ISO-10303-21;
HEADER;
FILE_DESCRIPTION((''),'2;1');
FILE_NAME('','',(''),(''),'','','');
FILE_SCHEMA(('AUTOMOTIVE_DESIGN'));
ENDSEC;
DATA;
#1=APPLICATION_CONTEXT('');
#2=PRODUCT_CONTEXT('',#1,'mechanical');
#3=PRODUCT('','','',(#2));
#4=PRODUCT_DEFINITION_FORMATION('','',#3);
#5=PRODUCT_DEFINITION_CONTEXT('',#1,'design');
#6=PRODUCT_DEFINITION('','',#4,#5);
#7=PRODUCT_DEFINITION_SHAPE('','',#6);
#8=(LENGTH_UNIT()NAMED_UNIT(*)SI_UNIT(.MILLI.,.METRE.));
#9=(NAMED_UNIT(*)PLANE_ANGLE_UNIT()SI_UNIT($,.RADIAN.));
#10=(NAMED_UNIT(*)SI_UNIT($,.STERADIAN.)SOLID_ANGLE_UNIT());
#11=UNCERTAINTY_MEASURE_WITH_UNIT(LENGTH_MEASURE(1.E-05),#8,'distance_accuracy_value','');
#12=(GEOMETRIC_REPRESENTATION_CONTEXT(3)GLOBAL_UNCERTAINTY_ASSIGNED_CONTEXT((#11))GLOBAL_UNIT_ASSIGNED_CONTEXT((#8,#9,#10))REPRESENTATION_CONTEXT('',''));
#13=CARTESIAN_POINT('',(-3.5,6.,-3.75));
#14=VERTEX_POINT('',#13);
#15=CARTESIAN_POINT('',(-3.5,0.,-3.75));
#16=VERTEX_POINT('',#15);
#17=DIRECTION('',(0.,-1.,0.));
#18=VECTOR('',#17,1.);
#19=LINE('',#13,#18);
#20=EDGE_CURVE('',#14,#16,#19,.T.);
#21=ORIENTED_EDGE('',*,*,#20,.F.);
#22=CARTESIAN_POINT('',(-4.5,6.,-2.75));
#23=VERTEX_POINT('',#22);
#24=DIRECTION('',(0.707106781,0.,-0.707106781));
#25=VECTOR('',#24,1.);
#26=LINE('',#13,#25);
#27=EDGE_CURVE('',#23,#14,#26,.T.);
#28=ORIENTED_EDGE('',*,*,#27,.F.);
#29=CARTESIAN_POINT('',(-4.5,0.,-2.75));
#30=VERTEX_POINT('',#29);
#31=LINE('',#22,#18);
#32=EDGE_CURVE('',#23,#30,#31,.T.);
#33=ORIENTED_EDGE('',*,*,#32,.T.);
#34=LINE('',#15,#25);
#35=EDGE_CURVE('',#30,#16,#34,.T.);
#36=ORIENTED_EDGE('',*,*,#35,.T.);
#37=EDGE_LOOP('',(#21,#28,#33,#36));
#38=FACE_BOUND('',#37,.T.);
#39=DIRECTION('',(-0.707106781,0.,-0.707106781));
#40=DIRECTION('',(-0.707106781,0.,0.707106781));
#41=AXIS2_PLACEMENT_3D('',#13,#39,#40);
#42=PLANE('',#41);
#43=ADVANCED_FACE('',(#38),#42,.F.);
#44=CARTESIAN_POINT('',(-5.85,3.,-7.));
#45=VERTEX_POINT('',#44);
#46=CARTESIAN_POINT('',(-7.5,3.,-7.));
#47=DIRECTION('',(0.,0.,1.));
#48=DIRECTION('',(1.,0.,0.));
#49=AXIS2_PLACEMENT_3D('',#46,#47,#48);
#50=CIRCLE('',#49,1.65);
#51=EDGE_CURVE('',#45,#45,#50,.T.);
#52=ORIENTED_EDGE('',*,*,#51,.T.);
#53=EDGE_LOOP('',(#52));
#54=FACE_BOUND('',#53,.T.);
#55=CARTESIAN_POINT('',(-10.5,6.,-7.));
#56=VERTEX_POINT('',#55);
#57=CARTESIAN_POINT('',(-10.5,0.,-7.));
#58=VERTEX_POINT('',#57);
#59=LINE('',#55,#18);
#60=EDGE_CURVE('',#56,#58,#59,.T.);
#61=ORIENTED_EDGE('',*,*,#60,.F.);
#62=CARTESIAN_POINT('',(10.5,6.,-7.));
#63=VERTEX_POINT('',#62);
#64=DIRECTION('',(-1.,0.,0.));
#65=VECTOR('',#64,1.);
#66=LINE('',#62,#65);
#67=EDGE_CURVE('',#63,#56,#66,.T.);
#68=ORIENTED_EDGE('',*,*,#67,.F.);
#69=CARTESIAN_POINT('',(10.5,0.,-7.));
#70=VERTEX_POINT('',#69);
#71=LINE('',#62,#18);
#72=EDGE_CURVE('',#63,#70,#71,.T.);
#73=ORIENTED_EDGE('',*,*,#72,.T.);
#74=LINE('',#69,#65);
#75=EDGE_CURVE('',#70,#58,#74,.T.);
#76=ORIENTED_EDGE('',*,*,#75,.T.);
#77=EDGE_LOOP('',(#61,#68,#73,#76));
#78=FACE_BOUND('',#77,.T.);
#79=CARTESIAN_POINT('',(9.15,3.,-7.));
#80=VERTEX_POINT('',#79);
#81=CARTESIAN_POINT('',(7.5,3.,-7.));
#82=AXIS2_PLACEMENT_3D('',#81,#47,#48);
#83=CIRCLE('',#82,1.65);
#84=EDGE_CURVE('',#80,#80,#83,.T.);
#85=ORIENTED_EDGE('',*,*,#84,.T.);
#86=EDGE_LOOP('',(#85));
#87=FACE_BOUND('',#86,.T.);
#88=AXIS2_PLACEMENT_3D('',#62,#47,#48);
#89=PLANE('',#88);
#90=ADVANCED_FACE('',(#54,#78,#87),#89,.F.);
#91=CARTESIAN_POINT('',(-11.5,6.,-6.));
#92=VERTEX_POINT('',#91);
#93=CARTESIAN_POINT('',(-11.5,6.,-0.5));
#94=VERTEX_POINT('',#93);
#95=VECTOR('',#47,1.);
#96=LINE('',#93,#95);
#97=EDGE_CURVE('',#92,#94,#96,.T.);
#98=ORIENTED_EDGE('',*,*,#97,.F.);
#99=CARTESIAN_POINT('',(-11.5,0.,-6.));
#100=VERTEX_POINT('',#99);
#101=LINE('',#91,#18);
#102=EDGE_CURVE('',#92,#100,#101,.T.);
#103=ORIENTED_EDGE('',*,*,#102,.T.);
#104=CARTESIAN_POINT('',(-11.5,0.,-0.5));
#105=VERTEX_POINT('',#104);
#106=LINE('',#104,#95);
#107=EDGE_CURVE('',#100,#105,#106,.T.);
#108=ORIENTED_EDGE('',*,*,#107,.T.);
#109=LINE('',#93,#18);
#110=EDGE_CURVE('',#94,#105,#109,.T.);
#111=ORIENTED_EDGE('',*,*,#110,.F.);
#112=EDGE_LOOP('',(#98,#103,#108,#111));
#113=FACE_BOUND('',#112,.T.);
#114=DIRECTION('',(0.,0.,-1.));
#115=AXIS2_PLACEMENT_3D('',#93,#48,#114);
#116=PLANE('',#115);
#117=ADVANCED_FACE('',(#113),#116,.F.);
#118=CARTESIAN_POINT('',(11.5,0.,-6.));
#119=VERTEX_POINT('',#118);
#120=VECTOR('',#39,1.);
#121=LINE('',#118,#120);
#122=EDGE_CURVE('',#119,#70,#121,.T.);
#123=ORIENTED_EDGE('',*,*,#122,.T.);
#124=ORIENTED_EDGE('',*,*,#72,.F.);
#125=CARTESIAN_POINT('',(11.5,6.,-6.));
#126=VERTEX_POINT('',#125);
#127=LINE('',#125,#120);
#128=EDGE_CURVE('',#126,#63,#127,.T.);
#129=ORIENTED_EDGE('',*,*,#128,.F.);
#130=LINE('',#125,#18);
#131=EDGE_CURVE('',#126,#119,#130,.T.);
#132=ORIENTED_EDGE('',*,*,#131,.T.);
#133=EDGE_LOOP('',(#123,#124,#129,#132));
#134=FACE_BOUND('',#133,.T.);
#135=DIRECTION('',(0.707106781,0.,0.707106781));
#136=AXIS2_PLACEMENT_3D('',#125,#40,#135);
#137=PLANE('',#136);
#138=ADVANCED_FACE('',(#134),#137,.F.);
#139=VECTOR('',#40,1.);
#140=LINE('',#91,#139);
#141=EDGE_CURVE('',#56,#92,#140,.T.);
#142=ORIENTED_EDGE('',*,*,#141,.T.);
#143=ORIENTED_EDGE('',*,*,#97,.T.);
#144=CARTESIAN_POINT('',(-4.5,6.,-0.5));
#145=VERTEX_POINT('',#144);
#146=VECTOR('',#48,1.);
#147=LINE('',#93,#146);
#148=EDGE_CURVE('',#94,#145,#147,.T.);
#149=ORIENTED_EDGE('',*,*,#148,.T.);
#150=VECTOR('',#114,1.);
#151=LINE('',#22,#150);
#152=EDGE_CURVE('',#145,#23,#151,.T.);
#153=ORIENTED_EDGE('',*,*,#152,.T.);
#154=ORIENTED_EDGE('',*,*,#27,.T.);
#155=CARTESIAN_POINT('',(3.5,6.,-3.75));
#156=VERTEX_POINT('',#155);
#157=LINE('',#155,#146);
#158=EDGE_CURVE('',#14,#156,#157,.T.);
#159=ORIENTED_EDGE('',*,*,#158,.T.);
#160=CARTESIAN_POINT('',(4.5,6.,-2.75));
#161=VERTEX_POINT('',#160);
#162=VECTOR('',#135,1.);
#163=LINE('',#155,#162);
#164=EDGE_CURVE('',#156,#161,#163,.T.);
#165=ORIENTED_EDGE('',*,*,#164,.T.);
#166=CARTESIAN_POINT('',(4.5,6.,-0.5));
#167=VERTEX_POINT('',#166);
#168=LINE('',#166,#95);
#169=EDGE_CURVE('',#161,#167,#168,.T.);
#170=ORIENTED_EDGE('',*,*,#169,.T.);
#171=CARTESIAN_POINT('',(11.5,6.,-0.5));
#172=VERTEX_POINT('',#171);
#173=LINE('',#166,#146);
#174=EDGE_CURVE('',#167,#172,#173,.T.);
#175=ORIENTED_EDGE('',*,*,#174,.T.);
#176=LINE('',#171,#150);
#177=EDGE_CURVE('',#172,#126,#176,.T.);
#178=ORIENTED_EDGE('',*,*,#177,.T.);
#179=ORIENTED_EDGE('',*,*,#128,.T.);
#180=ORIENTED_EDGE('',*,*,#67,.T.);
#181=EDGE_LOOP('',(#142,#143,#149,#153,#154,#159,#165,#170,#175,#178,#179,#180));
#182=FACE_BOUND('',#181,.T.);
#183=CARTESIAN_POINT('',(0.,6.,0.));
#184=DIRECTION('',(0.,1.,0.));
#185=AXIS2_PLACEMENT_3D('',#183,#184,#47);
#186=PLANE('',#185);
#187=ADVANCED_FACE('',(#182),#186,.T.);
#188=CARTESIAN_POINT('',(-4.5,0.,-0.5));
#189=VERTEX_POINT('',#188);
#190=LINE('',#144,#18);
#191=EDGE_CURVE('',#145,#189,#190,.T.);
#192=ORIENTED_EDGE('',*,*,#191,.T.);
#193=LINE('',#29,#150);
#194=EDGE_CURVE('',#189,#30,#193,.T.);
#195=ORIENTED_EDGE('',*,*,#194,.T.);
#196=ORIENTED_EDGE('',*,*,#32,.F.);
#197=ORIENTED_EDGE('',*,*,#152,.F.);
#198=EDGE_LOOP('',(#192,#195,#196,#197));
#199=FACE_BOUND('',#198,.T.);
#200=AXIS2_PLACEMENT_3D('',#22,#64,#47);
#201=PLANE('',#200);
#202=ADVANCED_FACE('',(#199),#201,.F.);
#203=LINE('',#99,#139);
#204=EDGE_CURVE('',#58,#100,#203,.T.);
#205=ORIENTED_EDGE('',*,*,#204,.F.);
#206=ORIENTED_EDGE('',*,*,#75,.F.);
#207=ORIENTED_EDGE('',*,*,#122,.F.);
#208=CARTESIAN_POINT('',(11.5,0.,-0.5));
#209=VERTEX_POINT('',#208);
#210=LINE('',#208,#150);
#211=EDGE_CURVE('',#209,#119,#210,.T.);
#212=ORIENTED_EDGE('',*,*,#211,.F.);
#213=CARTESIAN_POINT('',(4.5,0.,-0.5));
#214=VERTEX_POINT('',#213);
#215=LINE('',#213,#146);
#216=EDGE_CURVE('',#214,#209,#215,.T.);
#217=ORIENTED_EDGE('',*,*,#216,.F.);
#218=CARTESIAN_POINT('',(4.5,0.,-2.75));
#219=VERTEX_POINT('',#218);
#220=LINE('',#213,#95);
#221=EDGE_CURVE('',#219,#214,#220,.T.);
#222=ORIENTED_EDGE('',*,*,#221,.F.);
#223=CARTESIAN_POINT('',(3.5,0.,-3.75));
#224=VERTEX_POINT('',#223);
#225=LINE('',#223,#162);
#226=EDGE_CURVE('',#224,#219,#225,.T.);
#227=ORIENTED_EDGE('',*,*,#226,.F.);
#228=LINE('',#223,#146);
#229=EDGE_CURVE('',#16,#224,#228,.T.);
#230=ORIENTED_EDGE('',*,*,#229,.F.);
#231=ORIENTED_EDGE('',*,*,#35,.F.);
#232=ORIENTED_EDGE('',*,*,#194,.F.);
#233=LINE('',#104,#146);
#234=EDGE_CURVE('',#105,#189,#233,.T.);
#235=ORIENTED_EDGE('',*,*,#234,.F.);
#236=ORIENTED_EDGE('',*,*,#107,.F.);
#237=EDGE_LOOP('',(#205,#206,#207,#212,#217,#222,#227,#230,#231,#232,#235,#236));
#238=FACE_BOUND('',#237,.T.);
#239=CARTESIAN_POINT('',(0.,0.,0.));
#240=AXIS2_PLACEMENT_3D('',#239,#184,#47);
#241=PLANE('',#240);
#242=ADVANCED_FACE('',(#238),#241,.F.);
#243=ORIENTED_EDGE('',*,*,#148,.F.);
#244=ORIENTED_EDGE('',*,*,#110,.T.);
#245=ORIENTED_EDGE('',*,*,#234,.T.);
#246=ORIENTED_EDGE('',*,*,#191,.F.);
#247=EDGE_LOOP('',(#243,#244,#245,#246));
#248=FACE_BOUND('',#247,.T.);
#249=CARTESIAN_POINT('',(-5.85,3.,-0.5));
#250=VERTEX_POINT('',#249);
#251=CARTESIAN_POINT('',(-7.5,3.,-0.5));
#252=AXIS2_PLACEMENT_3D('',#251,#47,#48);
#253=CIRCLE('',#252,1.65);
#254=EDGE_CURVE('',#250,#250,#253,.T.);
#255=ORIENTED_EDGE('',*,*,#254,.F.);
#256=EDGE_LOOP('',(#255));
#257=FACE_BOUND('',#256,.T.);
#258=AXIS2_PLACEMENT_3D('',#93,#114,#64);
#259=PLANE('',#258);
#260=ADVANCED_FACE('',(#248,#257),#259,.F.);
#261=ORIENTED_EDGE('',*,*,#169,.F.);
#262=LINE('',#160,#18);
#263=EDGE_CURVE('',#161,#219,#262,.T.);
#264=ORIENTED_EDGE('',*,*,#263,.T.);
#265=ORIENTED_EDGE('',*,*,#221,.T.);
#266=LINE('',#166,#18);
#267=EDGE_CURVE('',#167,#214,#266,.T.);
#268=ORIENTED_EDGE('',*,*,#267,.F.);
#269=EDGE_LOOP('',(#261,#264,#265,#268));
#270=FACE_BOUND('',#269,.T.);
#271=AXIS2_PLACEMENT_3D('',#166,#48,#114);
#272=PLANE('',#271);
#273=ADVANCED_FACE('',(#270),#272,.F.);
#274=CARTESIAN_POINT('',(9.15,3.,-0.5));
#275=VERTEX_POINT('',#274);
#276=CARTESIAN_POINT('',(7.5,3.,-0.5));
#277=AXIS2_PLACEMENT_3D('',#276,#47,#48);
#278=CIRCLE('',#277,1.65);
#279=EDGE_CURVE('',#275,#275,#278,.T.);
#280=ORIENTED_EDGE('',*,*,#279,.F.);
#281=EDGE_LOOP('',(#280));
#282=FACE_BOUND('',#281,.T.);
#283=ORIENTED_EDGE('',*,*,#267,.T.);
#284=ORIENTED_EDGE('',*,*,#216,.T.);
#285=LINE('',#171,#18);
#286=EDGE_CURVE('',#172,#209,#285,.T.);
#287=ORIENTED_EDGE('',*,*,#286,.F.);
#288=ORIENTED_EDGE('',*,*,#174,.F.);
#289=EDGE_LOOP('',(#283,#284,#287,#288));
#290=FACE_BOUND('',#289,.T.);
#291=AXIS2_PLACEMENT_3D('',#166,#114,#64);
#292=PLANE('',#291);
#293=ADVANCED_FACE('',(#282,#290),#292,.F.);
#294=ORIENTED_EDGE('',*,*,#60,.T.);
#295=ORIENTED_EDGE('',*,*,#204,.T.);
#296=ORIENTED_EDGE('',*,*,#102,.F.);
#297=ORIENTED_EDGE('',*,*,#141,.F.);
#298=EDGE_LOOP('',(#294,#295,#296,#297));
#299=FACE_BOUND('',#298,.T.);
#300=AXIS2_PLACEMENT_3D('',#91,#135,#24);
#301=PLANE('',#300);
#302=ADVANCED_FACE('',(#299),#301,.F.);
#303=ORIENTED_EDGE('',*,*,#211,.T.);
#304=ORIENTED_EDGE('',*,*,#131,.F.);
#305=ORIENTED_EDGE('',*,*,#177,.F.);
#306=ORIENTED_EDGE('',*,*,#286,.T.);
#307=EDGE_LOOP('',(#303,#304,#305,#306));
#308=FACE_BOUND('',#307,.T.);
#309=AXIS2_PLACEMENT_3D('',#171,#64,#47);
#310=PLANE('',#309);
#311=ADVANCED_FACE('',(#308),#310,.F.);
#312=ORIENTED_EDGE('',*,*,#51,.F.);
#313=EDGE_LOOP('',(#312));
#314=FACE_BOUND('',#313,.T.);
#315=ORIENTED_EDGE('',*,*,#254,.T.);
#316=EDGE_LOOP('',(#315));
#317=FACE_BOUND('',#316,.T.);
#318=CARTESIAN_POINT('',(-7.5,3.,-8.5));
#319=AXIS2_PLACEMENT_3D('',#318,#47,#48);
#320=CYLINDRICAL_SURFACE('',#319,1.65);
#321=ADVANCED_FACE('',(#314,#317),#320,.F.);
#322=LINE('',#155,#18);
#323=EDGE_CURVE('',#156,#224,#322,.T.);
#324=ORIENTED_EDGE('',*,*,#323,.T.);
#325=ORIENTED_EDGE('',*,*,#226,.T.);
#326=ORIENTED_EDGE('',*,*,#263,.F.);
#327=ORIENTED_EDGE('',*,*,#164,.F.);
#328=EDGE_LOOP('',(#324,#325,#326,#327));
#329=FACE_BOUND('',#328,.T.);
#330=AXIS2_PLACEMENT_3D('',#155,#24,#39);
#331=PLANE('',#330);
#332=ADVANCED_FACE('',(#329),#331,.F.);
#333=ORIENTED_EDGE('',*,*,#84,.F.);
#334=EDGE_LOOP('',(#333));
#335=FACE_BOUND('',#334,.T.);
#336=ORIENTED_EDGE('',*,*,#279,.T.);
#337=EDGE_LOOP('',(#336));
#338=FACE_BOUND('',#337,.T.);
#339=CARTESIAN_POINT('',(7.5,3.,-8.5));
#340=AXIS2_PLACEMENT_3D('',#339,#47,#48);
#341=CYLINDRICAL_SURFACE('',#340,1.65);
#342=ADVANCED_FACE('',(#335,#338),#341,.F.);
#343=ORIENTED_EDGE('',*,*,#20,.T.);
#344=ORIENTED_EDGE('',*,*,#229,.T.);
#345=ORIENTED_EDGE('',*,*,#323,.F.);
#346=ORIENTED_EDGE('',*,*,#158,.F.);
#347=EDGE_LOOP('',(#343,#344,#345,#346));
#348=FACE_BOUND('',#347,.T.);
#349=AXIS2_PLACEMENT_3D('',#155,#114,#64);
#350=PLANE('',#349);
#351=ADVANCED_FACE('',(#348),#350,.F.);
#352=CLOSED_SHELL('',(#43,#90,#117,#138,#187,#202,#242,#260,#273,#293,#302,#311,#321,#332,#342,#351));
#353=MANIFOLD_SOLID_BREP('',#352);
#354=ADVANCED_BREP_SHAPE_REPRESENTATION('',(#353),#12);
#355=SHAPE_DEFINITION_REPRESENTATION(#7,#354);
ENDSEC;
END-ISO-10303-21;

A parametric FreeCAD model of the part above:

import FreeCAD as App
import Part
import Sketcher

V = App.Vector

doc = App.newDocument("Part")
body = doc.addObject("PartDesign::Body", "Body")

# Sketch on XZ plane
sketch1 = body.newObject("Sketcher::SketchObject", "Sketch")
sketch1.AttachmentSupport = (doc.getObject("XZ_Plane"), [""])
sketch1.MapMode = "FlatFace"
sketch1.addGeometry([
    Part.LineSegment(V(-11.5, -6, 0), V(-11.5, -0.5, 0)),  # 0
    Part.LineSegment(V(-11.5, -0.5, 0), V(-4.5, -0.5, 0)),  # 1
    Part.LineSegment(V(-4.5, -0.5, 0), V(-4.5, -2.75, 0)),  # 2
    Part.LineSegment(V(-4.5, -2.75, 0), V(-3.5, -3.75, 0)),  # 3
    Part.LineSegment(V(-3.5, -3.75, 0), V(3.5, -3.75, 0)),  # 4
    Part.LineSegment(V(3.5, -3.75, 0), V(4.5, -2.75, 0)),  # 5
    Part.LineSegment(V(4.5, -2.75, 0), V(4.5, -0.5, 0)),  # 6
    Part.LineSegment(V(4.5, -0.5, 0), V(11.5, -0.5, 0)),  # 7
    Part.LineSegment(V(11.5, -0.5, 0), V(11.5, -6, 0)),  # 8
    Part.LineSegment(V(11.5, -6, 0), V(10.5, -7, 0)),  # 9
    Part.LineSegment(V(10.5, -7, 0), V(-10.5, -7, 0)),  # 10
    Part.LineSegment(V(-10.5, -7, 0), V(-11.5, -6, 0)),  # 11
], False)
sketch1.addConstraint([
    Sketcher.Constraint("Coincident", 0, 2, 1, 1),
    Sketcher.Constraint("Coincident", 1, 2, 2, 1),
    Sketcher.Constraint("Coincident", 2, 2, 3, 1),
    Sketcher.Constraint("Coincident", 3, 2, 4, 1),
    Sketcher.Constraint("Coincident", 4, 2, 5, 1),
    Sketcher.Constraint("Coincident", 5, 2, 6, 1),
    Sketcher.Constraint("Coincident", 6, 2, 7, 1),
    Sketcher.Constraint("Coincident", 7, 2, 8, 1),
    Sketcher.Constraint("Coincident", 8, 2, 9, 1),
    Sketcher.Constraint("Coincident", 9, 2, 10, 1),
    Sketcher.Constraint("Coincident", 10, 2, 11, 1),
    Sketcher.Constraint("Coincident", 11, 2, 0, 1),
    Sketcher.Constraint("Vertical", 0),
    Sketcher.Constraint("Horizontal", 1),
    Sketcher.Constraint("Vertical", 2),
    Sketcher.Constraint("Horizontal", 4),
    Sketcher.Constraint("Vertical", 6),
    Sketcher.Constraint("Horizontal", 7),
    Sketcher.Constraint("Vertical", 8),
    Sketcher.Constraint("Horizontal", 10),
    Sketcher.Constraint("Symmetric", 2, 2, 5, 2, -2),
    Sketcher.Constraint("Symmetric", 0, 2, 7, 2, -2),
    Sketcher.Constraint("Perpendicular", 3, 5),
    Sketcher.Constraint("Parallel", 5, 9),
    Sketcher.Constraint("Perpendicular", 9, 11),
    Sketcher.Constraint("Horizontal", 8, 2, 11, 2),
    Sketcher.Constraint("Equal", 1, 4),
    Sketcher.Constraint("Equal", 3, 5),
    Sketcher.Constraint("Equal", 5, 9),
    Sketcher.Constraint("DistanceX", 1, 1, 1, 2, 7.0),
    Sketcher.Constraint("DistanceY", 0, 1, 0, 2, 5.5),
    Sketcher.Constraint("DistanceY", 8, 2, -1, 1, 6.0),
    Sketcher.Constraint("DistanceY", 9, 2, -1, 1, 7.0),
    Sketcher.Constraint("DistanceY", 2, 2, 2, 1, 2.25),
])
pad1 = body.newObject("PartDesign::Pad", "Pad")
pad1.Profile = sketch1
pad1.Length = 6
pad1.Reversed = True

# Sketch on XY plane
sketch2 = body.newObject("Sketcher::SketchObject", "Sketch001")
sketch2.AttachmentSupport = (doc.getObject("XY_Plane"), [""])
sketch2.MapMode = "FlatFace"
sketch2.AttachmentOffset = App.Placement(V(0, 0, -0.5), App.Rotation())
sketch2.addGeometry([
    Part.Circle(V(-7.5, 3, 0), V(0, 0, 1), 1.65),
    Part.Circle(V(7.5, 3, 0), V(0, 0, 1), 1.65),
], False)
sketch2.addConstraint([
    Sketcher.Constraint("Equal", 0, 1),
    Sketcher.Constraint("Symmetric", 0, 3, 1, 3, -2),
    Sketcher.Constraint("Diameter", 0, 3.3),
    Sketcher.Constraint("DistanceY", -1, 1, 0, 3, 3.0),
    Sketcher.Constraint("DistanceX", 0, 3, 1, 3, 15.0),
])
pocket1 = body.newObject("PartDesign::Pocket", "Pocket")
pocket1.Profile = sketch2
pocket1.Length = 8

doc.recompute()
